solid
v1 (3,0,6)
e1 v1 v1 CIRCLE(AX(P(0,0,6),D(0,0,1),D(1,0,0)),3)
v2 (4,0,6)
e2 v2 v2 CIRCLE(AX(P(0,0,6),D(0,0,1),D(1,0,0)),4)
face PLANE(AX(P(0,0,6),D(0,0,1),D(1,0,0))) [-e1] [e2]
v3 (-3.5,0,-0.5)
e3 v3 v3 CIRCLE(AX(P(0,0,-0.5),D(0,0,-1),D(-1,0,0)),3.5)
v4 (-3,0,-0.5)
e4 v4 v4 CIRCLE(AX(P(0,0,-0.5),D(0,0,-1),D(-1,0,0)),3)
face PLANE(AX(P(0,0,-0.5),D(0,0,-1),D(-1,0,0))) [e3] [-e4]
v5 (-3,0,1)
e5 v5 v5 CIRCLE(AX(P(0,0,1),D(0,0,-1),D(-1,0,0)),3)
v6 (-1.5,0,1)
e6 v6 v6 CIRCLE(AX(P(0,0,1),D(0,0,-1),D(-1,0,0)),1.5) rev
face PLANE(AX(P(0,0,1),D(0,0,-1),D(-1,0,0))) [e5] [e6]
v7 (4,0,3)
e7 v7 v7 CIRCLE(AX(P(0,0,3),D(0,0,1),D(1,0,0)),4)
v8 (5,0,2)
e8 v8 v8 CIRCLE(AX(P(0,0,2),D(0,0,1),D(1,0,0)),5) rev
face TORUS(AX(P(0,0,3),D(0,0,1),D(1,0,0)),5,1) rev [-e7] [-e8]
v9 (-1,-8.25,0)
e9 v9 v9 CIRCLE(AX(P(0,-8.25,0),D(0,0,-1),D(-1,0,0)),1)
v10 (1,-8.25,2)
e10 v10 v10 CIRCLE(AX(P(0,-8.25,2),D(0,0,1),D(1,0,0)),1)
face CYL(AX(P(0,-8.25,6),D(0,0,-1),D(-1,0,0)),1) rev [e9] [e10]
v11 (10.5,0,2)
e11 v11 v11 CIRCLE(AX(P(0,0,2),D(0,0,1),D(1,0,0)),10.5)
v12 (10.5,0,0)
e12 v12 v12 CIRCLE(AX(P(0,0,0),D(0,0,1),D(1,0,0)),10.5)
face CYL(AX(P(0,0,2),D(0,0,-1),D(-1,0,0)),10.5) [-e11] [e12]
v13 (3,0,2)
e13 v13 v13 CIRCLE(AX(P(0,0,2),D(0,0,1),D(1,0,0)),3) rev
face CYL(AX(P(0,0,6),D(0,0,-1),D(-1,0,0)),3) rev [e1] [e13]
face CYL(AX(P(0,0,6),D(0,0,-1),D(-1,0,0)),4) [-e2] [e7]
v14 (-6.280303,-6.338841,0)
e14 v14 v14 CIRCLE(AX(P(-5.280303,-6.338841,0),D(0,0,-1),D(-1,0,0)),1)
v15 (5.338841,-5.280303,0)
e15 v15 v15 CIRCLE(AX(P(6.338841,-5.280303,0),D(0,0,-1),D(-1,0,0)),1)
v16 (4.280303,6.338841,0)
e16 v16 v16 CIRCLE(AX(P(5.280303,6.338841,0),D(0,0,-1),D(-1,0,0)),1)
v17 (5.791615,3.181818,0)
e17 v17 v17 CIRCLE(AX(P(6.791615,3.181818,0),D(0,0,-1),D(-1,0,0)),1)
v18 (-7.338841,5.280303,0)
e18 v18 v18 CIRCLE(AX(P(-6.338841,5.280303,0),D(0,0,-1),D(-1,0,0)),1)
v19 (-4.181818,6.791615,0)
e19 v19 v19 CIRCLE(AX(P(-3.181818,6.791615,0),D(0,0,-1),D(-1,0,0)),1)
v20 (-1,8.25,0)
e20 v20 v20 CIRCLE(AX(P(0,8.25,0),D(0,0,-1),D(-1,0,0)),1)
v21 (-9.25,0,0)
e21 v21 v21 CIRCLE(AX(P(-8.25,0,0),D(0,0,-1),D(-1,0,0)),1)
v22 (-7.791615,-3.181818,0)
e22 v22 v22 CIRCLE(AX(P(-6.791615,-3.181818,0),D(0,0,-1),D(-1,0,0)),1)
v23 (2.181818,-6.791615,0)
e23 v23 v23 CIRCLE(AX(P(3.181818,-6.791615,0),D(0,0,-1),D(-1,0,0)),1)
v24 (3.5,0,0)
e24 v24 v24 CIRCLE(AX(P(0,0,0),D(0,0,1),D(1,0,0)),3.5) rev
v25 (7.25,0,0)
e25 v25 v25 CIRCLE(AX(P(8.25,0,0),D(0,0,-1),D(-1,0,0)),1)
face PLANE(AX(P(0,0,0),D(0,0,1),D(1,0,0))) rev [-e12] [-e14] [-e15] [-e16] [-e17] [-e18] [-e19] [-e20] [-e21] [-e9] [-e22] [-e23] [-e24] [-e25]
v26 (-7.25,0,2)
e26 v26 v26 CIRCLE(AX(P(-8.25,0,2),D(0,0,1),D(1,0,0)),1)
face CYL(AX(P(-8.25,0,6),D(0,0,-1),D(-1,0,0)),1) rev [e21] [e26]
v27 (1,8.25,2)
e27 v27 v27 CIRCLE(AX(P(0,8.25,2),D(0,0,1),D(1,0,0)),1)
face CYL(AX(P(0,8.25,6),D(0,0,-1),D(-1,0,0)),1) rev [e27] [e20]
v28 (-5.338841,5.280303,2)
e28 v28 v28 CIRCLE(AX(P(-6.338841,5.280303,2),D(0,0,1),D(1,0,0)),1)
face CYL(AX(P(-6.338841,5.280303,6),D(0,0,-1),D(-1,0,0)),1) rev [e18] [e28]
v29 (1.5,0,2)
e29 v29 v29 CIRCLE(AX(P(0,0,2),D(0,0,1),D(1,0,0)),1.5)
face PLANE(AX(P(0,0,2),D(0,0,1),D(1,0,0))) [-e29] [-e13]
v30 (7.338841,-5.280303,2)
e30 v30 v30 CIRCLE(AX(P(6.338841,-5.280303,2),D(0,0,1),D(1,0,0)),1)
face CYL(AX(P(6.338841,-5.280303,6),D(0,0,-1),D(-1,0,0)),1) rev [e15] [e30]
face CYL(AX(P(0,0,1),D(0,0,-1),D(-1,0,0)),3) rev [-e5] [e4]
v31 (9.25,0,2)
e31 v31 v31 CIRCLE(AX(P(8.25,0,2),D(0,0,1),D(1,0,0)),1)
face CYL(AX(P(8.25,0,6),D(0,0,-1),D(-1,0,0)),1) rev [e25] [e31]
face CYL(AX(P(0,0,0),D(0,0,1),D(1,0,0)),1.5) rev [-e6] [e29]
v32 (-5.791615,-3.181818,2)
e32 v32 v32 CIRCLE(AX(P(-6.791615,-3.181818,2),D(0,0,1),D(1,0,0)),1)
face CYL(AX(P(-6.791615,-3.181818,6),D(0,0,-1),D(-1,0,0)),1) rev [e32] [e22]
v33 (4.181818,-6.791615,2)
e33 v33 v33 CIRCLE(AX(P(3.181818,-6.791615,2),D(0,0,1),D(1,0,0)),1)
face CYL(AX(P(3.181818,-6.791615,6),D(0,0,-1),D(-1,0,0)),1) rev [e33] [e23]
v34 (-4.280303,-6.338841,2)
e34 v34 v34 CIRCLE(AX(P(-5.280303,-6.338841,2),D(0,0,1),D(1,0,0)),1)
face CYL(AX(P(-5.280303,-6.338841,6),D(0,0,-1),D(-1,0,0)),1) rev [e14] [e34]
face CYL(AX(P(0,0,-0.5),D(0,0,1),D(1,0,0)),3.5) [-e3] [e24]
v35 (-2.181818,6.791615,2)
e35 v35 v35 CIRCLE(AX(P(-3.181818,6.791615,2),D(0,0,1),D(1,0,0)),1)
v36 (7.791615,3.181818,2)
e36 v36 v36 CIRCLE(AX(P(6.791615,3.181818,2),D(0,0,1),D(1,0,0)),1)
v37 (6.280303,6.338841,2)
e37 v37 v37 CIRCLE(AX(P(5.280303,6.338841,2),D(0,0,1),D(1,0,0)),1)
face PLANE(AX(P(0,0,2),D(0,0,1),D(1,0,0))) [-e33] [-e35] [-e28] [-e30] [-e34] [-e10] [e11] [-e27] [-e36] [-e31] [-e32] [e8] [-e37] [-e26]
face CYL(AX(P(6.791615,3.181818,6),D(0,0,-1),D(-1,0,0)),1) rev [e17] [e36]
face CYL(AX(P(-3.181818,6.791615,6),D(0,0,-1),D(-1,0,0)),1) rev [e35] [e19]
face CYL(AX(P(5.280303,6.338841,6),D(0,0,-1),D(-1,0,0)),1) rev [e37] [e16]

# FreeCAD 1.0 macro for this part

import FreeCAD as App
import Part
import Sketcher
from FreeCAD import Vector


def edges_at(feature, points):
    """Names of the edges that pass closest to the given points."""
    edges = feature.Shape.Edges
    near = lambda p: min(range(len(edges)), key=lambda i: edges[i].distToShape(Part.Vertex(*p))[0])
    return sorted({f"Edge{near(p) + 1}" for p in points})

doc = App.newDocument("Part")
body = doc.addObject("PartDesign::Body", "Body")

# Sketch on XY plane
sketch1 = body.newObject("Sketcher::SketchObject", "Sketch")
sketch1.AttachmentSupport = (doc.getObject("XY_Plane"), [""])
sketch1.MapMode = "FlatFace"
sketch1.addGeometry(Part.Circle(Vector(0, 0, 0), Vector(0, 0, 1), 10.5), False)
sketch1.addConstraint(Sketcher.Constraint("Coincident", 0, 3, -1, 1))
sketch1.addConstraint(Sketcher.Constraint("Diameter", 0, 21.0))
pad1 = body.newObject("PartDesign::Pad", "Pad")
pad1.Profile = sketch1
pad1.Length = 2

# Sketch on XY plane
sketch2 = body.newObject("Sketcher::SketchObject", "Sketch001")
sketch2.AttachmentSupport = (doc.getObject("XY_Plane"), [""])
sketch2.MapMode = "FlatFace"
sketch2.AttachmentOffset = App.Placement(Vector(0, 0, 2), App.Rotation())
sketch2.addGeometry(Part.Circle(Vector(0, 0, 0), Vector(0, 0, 1), 4), False)
sketch2.addGeometry(Part.Circle(Vector(0, 0, 0), Vector(0, 0, 1), 3), False)
sketch2.addConstraint(Sketcher.Constraint("Coincident", 0, 3, -1, 1))
sketch2.addConstraint(Sketcher.Constraint("Coincident", 1, 3, -1, 1))
sketch2.addConstraint(Sketcher.Constraint("Diameter", 0, 8.0))
sketch2.addConstraint(Sketcher.Constraint("Diameter", 1, 6.0))
pad2 = body.newObject("PartDesign::Pad", "Pad001")
pad2.Profile = sketch2
pad2.Length = 4

# Sketch on XY plane
sketch3 = body.newObject("Sketcher::SketchObject", "Sketch002")
sketch3.AttachmentSupport = (doc.getObject("XY_Plane"), [""])
sketch3.MapMode = "FlatFace"
sketch3.AttachmentOffset = App.Placement(Vector(0, 0, 2), App.Rotation())
sketch3.addGeometry(Part.Circle(Vector(0, 0, 0), Vector(0, 0, 1), 1.5), False)
sketch3.addConstraint(Sketcher.Constraint("Coincident", 0, 3, -1, 1))
sketch3.addConstraint(Sketcher.Constraint("Diameter", 0, 3.0))
pocket1 = body.newObject("PartDesign::Pocket", "Pocket")
pocket1.Profile = sketch3
pocket1.Type = "ThroughAll"
doc.recompute()

fillet = body.newObject("PartDesign::Fillet", "Fillet")
fillet.Base = (pocket1, edges_at(pocket1, [(-4, 0, 2)]))
fillet.Radius = 1

# Sketch on XY plane
sketch4 = body.newObject("Sketcher::SketchObject", "Sketch003")
sketch4.AttachmentSupport = (doc.getObject("XY_Plane"), [""])
sketch4.MapMode = "FlatFace"
sketch4.addGeometry(Part.Circle(Vector(0, 0, 0), Vector(0, 0, 1), 3.5), False)
sketch4.addConstraint(Sketcher.Constraint("Coincident", 0, 3, -1, 1))
sketch4.addConstraint(Sketcher.Constraint("Diameter", 0, 7.0))
pad3 = body.newObject("PartDesign::Pad", "Pad002")
pad3.Profile = sketch4
pad3.Length = 0.5
pad3.Reversed = True

# Sketch on XY plane
sketch5 = body.newObject("Sketcher::SketchObject", "Sketch004")
sketch5.AttachmentSupport = (doc.getObject("XY_Plane"), [""])
sketch5.MapMode = "FlatFace"
sketch5.AttachmentOffset = App.Placement(Vector(0, 0, -0.5), App.Rotation())
sketch5.addGeometry(Part.Circle(Vector(0, 0, 0), Vector(0, 0, 1), 3), False)
sketch5.addConstraint(Sketcher.Constraint("Coincident", 0, 3, -1, 1))
sketch5.addConstraint(Sketcher.Constraint("Diameter", 0, 6.0))
pocket2 = body.newObject("PartDesign::Pocket", "Pocket001")
pocket2.Profile = sketch5
pocket2.Length = 1.5
pocket2.Reversed = True

# Sketch on XY plane
sketch6 = body.newObject("Sketcher::SketchObject", "Sketch005")
sketch6.AttachmentSupport = (doc.getObject("XY_Plane"), [""])
sketch6.MapMode = "FlatFace"
sketch6.addGeometry(Part.Circle(Vector(-8.25, 0, 0), Vector(0, 0, 1), 1), False)
sketch6.addGeometry(Part.Circle(Vector(0, -8.25, 0), Vector(0, 0, 1), 1), False)
sketch6.addGeometry(Part.Circle(Vector(8.25, 0, 0), Vector(0, 0, 1), 1), False)
sketch6.addGeometry(Part.Circle(Vector(0, 8.25, 0), Vector(0, 0, 1), 1), False)
sketch6.addGeometry(Part.Circle(Vector(-5.280303, -6.338841, 0), Vector(0, 0, 1), 1), False)
sketch6.addGeometry(Part.Circle(Vector(6.338841, -5.280303, 0), Vector(0, 0, 1), 1), False)
sketch6.addGeometry(Part.Circle(Vector(5.280303, 6.338841, 0), Vector(0, 0, 1), 1), False)
sketch6.addGeometry(Part.Circle(Vector(-6.338841, 5.280303, 0), Vector(0, 0, 1), 1), False)
sketch6.addGeometry(Part.Circle(Vector(-6.791615, -3.181818, 0), Vector(0, 0, 1), 1), False)
sketch6.addGeometry(Part.Circle(Vector(3.181818, -6.791615, 0), Vector(0, 0, 1), 1), False)
sketch6.addGeometry(Part.Circle(Vector(6.791615, 3.181818, 0), Vector(0, 0, 1), 1), False)
sketch6.addGeometry(Part.Circle(Vector(-3.181818, 6.791615, 0), Vector(0, 0, 1), 1), False)
sketch6.addConstraint(Sketcher.Constraint("Equal", 0, 1))
sketch6.addConstraint(Sketcher.Constraint("Equal", 1, 2))
sketch6.addConstraint(Sketcher.Constraint("Equal", 2, 3))
sketch6.addConstraint(Sketcher.Constraint("Equal", 3, 4))
sketch6.addConstraint(Sketcher.Constraint("Equal", 4, 5))
sketch6.addConstraint(Sketcher.Constraint("Equal", 5, 6))
sketch6.addConstraint(Sketcher.Constraint("Equal", 6, 7))
sketch6.addConstraint(Sketcher.Constraint("Equal", 7, 8))
sketch6.addConstraint(Sketcher.Constraint("Equal", 8, 9))
sketch6.addConstraint(Sketcher.Constraint("Equal", 9, 10))
sketch6.addConstraint(Sketcher.Constraint("Equal", 10, 11))
sketch6.addConstraint(Sketcher.Constraint("Symmetric", 0, 3, 2, 3, -1, 1))
sketch6.addConstraint(Sketcher.Constraint("Symmetric", 1, 3, 3, 3, -1, 1))
sketch6.addConstraint(Sketcher.Constraint("Symmetric", 4, 3, 6, 3, -1, 1))
sketch6.addConstraint(Sketcher.Constraint("Symmetric", 5, 3, 7, 3, -1, 1))
sketch6.addConstraint(Sketcher.Constraint("Symmetric", 8, 3, 10, 3, -1, 1))
sketch6.addConstraint(Sketcher.Constraint("Symmetric", 9, 3, 11, 3, -1, 1))
sketch6.addConstraint(Sketcher.Constraint("PointOnObject", 0, 3, -1))
sketch6.addConstraint(Sketcher.Constraint("PointOnObject", 1, 3, -2))
sketch6.addConstraint(Sketcher.Constraint("Diameter", 0, 2.0))
sketch6.addConstraint(Sketcher.Constraint("DistanceX", 0, 3, 2, 3, 16.5))
sketch6.addConstraint(Sketcher.Constraint("DistanceY", 1, 3, 3, 3, 16.5))
sketch6.addConstraint(Sketcher.Constraint("DistanceY", 4, 3, -1, 1, 6.338841))
sketch6.addConstraint(Sketcher.Constraint("DistanceX", -1, 1, 5, 3, 6.338841))
sketch6.addConstraint(Sketcher.Constraint("DistanceY", 8, 3, -1, 1, 3.181818))
sketch6.addConstraint(Sketcher.Constraint("DistanceX", -1, 1, 9, 3, 3.181818))
sketch6.addConstraint(Sketcher.Constraint("DistanceX", 8, 3, 4, 3, 1.511312))
sketch6.addConstraint(Sketcher.Constraint("DistanceY", 8, 3, 7, 3, 8.462121))
sketch6.addConstraint(Sketcher.Constraint("DistanceY", 9, 3, 5, 3, 1.511312))
sketch6.addConstraint(Sketcher.Constraint("DistanceX", 4, 3, 9, 3, 8.462121))
pocket3 = body.newObject("PartDesign::Pocket", "Pocket002")
pocket3.Profile = sketch6
pocket3.Type = "ThroughAll"
pocket3.Reversed = True

doc.recompute()
